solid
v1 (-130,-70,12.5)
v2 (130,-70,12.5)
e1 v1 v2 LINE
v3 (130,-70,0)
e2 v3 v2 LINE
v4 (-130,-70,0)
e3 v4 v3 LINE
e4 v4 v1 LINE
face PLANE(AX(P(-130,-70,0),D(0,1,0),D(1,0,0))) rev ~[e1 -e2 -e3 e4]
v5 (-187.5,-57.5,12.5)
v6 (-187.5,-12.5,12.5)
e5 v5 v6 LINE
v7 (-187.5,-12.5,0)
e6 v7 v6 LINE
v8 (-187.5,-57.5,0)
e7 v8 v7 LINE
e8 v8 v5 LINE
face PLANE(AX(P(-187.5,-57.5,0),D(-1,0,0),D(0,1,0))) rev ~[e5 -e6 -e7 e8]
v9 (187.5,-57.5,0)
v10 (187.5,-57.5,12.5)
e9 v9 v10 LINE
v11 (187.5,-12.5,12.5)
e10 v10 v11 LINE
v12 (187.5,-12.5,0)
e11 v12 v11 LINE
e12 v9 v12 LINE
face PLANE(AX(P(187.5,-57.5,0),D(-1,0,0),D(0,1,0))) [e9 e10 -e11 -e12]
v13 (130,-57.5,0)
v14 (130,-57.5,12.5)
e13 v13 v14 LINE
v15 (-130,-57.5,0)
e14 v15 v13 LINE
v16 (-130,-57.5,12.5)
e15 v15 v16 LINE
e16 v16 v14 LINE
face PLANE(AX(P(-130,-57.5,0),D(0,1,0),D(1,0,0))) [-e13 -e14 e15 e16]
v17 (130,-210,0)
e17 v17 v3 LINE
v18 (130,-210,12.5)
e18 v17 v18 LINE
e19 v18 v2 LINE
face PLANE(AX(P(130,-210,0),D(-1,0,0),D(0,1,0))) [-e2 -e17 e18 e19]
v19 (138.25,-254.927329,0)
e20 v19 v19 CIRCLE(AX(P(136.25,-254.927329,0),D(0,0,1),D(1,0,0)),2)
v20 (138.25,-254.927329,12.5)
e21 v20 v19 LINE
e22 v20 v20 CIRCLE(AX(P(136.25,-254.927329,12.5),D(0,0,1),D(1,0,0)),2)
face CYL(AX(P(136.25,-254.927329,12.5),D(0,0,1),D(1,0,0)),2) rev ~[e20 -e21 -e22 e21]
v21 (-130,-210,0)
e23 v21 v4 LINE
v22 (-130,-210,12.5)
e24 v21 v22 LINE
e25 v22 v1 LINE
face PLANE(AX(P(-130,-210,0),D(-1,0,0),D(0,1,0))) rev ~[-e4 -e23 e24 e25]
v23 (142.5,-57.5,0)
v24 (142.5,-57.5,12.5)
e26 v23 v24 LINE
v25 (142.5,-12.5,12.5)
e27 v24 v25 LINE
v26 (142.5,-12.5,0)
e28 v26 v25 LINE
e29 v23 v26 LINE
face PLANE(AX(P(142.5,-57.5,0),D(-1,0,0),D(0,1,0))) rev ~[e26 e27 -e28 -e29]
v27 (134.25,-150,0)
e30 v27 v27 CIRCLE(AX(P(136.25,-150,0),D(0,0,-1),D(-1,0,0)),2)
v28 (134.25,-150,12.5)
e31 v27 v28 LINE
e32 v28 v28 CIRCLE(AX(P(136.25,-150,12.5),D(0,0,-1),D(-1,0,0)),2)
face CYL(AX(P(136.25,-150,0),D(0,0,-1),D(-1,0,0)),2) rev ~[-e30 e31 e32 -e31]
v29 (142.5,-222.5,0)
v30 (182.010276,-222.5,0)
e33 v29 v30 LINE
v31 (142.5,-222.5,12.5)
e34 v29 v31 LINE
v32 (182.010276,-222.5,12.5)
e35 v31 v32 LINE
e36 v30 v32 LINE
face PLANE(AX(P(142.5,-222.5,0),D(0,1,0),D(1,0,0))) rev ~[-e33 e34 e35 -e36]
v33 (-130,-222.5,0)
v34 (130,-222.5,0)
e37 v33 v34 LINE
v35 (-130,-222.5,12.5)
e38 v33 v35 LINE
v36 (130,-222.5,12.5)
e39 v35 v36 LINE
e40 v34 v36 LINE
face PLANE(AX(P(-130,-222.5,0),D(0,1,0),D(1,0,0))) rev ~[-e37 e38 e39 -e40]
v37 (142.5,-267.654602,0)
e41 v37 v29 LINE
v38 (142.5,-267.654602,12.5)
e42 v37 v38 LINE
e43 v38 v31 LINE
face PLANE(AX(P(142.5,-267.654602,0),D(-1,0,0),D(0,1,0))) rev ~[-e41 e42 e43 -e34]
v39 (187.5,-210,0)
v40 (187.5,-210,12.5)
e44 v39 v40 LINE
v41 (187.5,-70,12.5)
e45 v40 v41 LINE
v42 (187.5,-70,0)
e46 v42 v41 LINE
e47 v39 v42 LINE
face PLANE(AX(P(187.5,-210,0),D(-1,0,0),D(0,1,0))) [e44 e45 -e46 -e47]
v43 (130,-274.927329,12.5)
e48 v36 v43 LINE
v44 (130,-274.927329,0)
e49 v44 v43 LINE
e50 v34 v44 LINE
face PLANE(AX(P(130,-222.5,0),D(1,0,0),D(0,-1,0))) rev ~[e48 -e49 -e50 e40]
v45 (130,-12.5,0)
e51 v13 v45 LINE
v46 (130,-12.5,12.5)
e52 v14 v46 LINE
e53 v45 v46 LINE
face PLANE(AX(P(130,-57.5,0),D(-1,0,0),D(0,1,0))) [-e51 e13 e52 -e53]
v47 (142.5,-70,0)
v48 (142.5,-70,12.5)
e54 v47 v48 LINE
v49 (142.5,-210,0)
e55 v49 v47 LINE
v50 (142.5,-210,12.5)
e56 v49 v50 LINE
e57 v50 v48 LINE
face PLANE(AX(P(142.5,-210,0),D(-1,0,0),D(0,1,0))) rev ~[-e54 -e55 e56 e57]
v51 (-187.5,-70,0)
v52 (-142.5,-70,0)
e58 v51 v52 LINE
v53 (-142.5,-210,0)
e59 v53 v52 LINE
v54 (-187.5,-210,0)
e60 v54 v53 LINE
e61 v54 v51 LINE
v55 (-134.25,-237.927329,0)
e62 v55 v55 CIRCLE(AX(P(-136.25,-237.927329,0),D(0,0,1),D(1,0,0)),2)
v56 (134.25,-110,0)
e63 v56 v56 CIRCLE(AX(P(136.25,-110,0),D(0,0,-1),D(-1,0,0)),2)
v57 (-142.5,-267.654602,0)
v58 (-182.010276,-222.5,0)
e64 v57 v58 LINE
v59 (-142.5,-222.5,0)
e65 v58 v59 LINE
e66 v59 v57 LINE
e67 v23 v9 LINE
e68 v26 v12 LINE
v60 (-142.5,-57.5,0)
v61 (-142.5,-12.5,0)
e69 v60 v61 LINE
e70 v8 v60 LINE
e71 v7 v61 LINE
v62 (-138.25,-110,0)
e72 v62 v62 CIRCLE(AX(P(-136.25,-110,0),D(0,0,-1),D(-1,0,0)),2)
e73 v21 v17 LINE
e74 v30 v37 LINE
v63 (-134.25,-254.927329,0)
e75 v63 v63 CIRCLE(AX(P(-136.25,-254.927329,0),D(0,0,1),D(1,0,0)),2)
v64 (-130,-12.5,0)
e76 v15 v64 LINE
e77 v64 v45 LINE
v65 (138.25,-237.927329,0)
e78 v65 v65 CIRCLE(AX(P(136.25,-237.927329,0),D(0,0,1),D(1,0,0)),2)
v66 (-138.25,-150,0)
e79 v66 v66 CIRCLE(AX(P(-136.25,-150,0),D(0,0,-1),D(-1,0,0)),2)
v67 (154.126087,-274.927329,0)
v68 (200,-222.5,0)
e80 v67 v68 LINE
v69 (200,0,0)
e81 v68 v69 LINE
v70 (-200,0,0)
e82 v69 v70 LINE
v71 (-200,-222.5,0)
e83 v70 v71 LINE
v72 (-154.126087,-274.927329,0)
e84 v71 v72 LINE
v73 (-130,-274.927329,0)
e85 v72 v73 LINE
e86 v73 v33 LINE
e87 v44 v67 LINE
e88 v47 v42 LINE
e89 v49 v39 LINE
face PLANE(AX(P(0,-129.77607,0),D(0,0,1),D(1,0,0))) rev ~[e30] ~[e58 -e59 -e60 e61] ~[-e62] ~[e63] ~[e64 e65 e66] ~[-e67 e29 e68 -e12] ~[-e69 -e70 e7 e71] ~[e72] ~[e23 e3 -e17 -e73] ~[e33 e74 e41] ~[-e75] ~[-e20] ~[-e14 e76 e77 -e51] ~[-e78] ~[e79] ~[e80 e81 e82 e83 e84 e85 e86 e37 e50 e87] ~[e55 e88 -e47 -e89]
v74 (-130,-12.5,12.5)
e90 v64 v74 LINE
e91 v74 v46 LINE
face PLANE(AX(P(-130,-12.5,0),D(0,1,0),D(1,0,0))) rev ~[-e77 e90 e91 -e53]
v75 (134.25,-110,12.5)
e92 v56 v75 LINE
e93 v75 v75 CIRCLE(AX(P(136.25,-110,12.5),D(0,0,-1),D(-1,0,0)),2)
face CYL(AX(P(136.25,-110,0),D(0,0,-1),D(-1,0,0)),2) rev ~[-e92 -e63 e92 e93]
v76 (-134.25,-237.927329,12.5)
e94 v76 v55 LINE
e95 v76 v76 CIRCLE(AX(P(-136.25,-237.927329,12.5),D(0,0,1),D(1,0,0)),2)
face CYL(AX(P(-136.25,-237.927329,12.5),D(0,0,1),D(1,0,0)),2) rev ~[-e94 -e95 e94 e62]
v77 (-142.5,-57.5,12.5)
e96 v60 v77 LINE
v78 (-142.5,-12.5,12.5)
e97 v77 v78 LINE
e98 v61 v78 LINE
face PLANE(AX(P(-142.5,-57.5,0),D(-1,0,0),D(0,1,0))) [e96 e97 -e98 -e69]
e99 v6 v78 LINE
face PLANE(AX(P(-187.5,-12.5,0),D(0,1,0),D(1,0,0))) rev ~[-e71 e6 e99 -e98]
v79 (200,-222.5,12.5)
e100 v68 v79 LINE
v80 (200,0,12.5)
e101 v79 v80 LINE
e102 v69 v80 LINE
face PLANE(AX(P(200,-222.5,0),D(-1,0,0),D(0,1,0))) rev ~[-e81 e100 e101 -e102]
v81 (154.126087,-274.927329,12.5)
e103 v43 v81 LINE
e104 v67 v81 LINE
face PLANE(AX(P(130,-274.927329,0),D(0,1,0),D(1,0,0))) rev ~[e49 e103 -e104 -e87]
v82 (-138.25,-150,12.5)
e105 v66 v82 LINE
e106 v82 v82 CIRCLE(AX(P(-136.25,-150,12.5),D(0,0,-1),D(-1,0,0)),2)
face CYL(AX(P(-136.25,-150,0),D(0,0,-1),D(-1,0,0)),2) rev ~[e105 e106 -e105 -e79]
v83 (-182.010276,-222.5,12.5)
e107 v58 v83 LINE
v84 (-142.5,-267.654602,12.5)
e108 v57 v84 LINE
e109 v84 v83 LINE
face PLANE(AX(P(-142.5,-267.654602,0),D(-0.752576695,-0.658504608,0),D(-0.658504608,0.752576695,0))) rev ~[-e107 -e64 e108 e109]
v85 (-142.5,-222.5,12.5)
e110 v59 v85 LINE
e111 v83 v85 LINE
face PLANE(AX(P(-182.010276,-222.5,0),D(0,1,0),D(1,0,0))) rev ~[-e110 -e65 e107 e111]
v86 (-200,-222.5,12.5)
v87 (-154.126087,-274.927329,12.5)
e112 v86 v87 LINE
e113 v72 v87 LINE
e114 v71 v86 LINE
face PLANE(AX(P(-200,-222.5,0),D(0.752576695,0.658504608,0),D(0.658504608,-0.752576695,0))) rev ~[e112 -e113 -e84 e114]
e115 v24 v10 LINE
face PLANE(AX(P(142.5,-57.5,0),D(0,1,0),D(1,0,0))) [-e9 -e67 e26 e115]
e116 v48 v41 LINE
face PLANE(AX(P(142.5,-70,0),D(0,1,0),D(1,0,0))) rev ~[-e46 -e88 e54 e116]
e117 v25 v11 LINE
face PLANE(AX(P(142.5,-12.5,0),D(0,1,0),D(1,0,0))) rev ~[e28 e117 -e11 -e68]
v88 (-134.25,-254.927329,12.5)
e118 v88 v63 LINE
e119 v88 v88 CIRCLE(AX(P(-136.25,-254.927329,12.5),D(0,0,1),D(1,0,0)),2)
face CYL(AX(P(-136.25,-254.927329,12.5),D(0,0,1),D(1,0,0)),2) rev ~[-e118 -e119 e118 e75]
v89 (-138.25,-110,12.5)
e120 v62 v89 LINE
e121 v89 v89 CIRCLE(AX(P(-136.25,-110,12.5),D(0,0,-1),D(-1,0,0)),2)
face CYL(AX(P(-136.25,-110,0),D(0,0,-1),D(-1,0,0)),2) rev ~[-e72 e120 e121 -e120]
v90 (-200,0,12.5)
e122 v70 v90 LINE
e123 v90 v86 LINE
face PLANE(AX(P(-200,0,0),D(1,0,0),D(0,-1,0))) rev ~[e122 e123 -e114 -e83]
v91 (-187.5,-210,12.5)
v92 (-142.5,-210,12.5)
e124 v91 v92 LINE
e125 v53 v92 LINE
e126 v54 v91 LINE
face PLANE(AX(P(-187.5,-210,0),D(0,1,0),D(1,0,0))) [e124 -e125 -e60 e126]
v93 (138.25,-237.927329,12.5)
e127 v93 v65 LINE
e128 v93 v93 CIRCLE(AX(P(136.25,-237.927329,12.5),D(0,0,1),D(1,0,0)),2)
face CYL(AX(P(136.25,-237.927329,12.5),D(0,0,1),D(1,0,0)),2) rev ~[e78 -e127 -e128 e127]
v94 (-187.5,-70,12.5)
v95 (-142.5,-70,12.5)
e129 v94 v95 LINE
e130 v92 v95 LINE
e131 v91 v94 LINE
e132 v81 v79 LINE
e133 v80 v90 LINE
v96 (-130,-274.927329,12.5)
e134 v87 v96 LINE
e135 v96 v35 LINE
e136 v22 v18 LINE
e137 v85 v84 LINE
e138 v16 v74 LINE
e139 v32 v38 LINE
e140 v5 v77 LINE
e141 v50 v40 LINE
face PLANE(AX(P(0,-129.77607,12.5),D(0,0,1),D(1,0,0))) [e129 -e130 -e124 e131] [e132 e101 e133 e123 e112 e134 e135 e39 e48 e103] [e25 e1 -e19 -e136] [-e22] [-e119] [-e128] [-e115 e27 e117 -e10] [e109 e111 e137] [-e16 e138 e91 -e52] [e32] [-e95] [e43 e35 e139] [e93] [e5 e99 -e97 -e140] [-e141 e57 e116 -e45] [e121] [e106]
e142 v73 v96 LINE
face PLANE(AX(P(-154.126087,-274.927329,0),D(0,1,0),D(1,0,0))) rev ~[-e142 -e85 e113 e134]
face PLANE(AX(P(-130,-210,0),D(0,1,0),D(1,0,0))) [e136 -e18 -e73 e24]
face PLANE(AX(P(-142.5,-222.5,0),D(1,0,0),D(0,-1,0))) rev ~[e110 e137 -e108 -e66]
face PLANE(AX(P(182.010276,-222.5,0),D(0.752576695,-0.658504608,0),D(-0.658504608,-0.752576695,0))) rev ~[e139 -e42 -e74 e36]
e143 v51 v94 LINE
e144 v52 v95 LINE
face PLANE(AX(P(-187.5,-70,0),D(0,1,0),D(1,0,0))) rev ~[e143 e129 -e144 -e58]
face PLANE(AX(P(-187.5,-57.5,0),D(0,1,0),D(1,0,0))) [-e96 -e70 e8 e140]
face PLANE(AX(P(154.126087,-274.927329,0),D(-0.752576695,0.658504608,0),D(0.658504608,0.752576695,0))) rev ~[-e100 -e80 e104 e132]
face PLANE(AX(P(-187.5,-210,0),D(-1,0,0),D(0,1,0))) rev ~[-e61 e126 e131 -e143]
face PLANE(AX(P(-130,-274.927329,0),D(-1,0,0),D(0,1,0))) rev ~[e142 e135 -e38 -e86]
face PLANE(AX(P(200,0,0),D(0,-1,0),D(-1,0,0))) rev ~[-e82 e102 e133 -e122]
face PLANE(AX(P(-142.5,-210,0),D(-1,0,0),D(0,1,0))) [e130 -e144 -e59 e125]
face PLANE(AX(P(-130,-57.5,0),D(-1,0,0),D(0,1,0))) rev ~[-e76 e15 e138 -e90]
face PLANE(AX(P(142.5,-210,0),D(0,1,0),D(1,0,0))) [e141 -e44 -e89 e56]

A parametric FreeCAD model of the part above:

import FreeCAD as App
import Part
import Sketcher
from FreeCAD import Vector
Q = App.Units.Quantity


def add_polygon(sketch, points):
    """Adds a closed chain of lines whose ends are joined by coincident constraints."""
    first, n = sketch.GeometryCount, len(points)
    for a, b in zip(points, points[1:] + points[:1]):
        sketch.addGeometry(Part.LineSegment(App.Vector(*a, 0), App.Vector(*b, 0)), False)
    for i in range(n):
        sketch.addConstraint(Sketcher.Constraint("Coincident", first + i, 2, first + (i + 1) % n, 1))

doc = App.newDocument("Part")
body = doc.addObject("PartDesign::Body", "Body")

sketch1 = body.newObject("Sketcher::SketchObject", "Sketch")
sketch1.AttachmentSupport = (doc.getObject("XY_Plane"), [""])
sketch1.MapMode = "FlatFace"
add_polygon(sketch1, [(200, 0), (-200, 0), (-200, -222), (-154, -275), (-130, -275), (-130, -222), (130, -222), (130, -275), (154, -275), (200, -222)])
add_polygon(sketch1, [(-142, -222), (-142, -268), (-182, -222)])
add_polygon(sketch1, [(142, -268), (142, -222), (182, -222)])
add_polygon(sketch1, [(-142, -210), (-188, -210), (-188, -70), (-142, -70)])
add_polygon(sketch1, [(-142, -58), (-188, -58), (-188, -12), (-142, -12)])
add_polygon(sketch1, [(130, -210), (-130, -210), (-130, -70), (130, -70)])
add_polygon(sketch1, [(188, -210), (142, -210), (142, -70), (188, -70)])
add_polygon(sketch1, [(130, -58), (-130, -58), (-130, -12), (130, -12)])
add_polygon(sketch1, [(188, -58), (142, -58), (142, -12), (188, -12)])
sketch1.addConstraint([
    Sketcher.Constraint("Horizontal", 0),
    Sketcher.Constraint("Vertical", 1),
    Sketcher.Constraint("Horizontal", 3),
    Sketcher.Constraint("Vertical", 4),
    Sketcher.Constraint("Horizontal", 5),
    Sketcher.Constraint("Vertical", 6),
    Sketcher.Constraint("Horizontal", 7),
    Sketcher.Constraint("Vertical", 9),
    Sketcher.Constraint("Vertical", 10),
    Sketcher.Constraint("Horizontal", 12),
    Sketcher.Constraint("Vertical", 13),
    Sketcher.Constraint("Horizontal", 14),
    Sketcher.Constraint("Horizontal", 16),
    Sketcher.Constraint("Vertical", 17),
    Sketcher.Constraint("Horizontal", 18),
    Sketcher.Constraint("Vertical", 19),
    Sketcher.Constraint("Horizontal", 20),
    Sketcher.Constraint("Vertical", 21),
    Sketcher.Constraint("Horizontal", 22),
    Sketcher.Constraint("Vertical", 23),
    Sketcher.Constraint("Horizontal", 24),
    Sketcher.Constraint("Vertical", 25),
    Sketcher.Constraint("Horizontal", 26),
    Sketcher.Constraint("Vertical", 27),
    Sketcher.Constraint("Horizontal", 28),
    Sketcher.Constraint("Vertical", 29),
    Sketcher.Constraint("Horizontal", 30),
    Sketcher.Constraint("Vertical", 31),
    Sketcher.Constraint("Horizontal", 32),
    Sketcher.Constraint("Vertical", 33),
    Sketcher.Constraint("Horizontal", 34),
    Sketcher.Constraint("Vertical", 35),
    Sketcher.Constraint("Horizontal", 36),
    Sketcher.Constraint("Vertical", 37),
    Sketcher.Constraint("Horizontal", 38),
    Sketcher.Constraint("Vertical", 39),
    Sketcher.Constraint("Symmetric", 0, 2, 9, 2, -1, 1),
    Sketcher.Constraint("Symmetric", 3, 2, 6, 2, -2),
    Sketcher.Constraint("Symmetric", 12, 2, 13, 2, -2),
    Sketcher.Constraint("Symmetric", 19, 2, 28, 2, -2),
    Sketcher.Constraint("Symmetric", 17, 2, 30, 2, -2),
    Sketcher.Constraint("Symmetric", 23, 2, 36, 2, -2),
    Sketcher.Constraint("Symmetric", 21, 2, 38, 2, -2),
    Sketcher.Constraint("Parallel", 2, 11),
    Sketcher.Constraint("Parallel", 8, 15),
    Sketcher.Constraint("Horizontal", 1, 2, 4, 2),
    Sketcher.Constraint("Horizontal", 5, 2, 8, 2),
    Sketcher.Constraint("Horizontal", 8, 2, 11, 2),
    Sketcher.Constraint("Horizontal", 10, 2, 15, 2),
    Sketcher.Constraint("Horizontal", 19, 2, 24, 2),
    Sketcher.Constraint("Horizontal", 18, 2, 25, 2),
    Sketcher.Constraint("Horizontal", 23, 2, 32, 2),
    Sketcher.Constraint("Horizontal", 22, 2, 33, 2),
    Sketcher.Constraint("Vertical", 12, 2, 18, 2),
    Sketcher.Constraint("Vertical", 17, 2, 20, 2),
    Sketcher.Constraint("Vertical", 19, 2, 22, 2),
    Sketcher.Constraint("Vertical", 4, 2, 24, 2),
    Sketcher.Constraint("Vertical", 6, 2, 26, 2),
    Sketcher.Constraint("Vertical", 25, 2, 32, 2),
    Sketcher.Constraint("Vertical", 27, 2, 34, 2),
    Sketcher.Constraint("Equal", 3, 7),
    Sketcher.Constraint("Equal", 38, 21),
    Sketcher.Constraint("DistanceX", 0, 2, 0, 1, Q("400 mm")),
    Sketcher.Constraint("DistanceX", 5, 1, 5, 2, Q("260 mm")),
    Sketcher.Constraint("DistanceX", 16, 2, 16, 1, Q("45 mm")),
    Sketcher.Constraint("DistanceY", 17, 1, 17, 2, Q("140 mm")),
    Sketcher.Constraint("Distance", 11, Q("60 mm")),
    Sketcher.Constraint("DistanceY", 1, 2, 1, 1, Q("222.5 mm")),
    Sketcher.Constraint("DistanceY", 16, 2, -1, 1, Q("210 mm")),
    Sketcher.Constraint("DistanceX", 10, 2, -1, 1, Q("142.5 mm")),
    Sketcher.Constraint("DistanceY", 20, 2, -1, 1, Q("57.5 mm")),
    Sketcher.Constraint("DistanceY", 10, 2, 10, 1, Q("45.154602 mm")),
    Sketcher.Constraint("DistanceY", 4, 1, 4, 2, Q("52.427329 mm")),
])
pad1 = body.newObject("PartDesign::Pad", "Pad")
pad1.Profile = sketch1
pad1.Length = 12.5

sketch2 = body.newObject("Sketcher::SketchObject", "Sketch001")
sketch2.AttachmentSupport = (doc.getObject("XY_Plane"), [""])
sketch2.MapMode = "FlatFace"
sketch2.addGeometry([
    Part.Circle(Vector(-136.2, -110, 0), Vector(0, 0, 1), 2),
    Part.Circle(Vector(-136.2, -150, 0), Vector(0, 0, 1), 2),
    Part.Circle(Vector(136.2, -110, 0), Vector(0, 0, 1), 2),
    Part.Circle(Vector(136.2, -150, 0), Vector(0, 0, 1), 2),
], False)
sketch2.addConstraint([
    Sketcher.Constraint("Equal", 0, 1),
    Sketcher.Constraint("Equal", 1, 2),
    Sketcher.Constraint("Equal", 2, 3),
    Sketcher.Constraint("Symmetric", 0, 3, 2, 3, -2),
    Sketcher.Constraint("Symmetric", 1, 3, 3, 3, -2),
    Sketcher.Constraint("Vertical", 0, 3, 1, 3),
    Sketcher.Constraint("Diameter", 0, Q("4 mm")),
    Sketcher.Constraint("DistanceY", 0, 3, -1, 1, Q("110 mm")),
    Sketcher.Constraint("DistanceY", 1, 3, -1, 1, Q("150 mm")),
    Sketcher.Constraint("DistanceX", 0, 3, 2, 3, Q("272.5 mm")),
])
pocket1 = body.newObject("PartDesign::Pocket", "Pocket")
pocket1.Profile = sketch2
pocket1.Length = 15
pocket1.Reversed = True

sketch3 = body.newObject("Sketcher::SketchObject", "Sketch002")
sketch3.AttachmentSupport = (doc.getObject("XY_Plane"), [""])
sketch3.MapMode = "FlatFace"
sketch3.AttachmentOffset = App.Placement(Vector(0, 0, 12.5), App.Rotation())
sketch3.addGeometry([
    Part.Circle(Vector(-136.2, -237.9, 0), Vector(0, 0, 1), 2),
    Part.Circle(Vector(-136.2, -254.9, 0), Vector(0, 0, 1), 2),
    Part.Circle(Vector(136.2, -254.9, 0), Vector(0, 0, 1), 2),
    Part.Circle(Vector(136.2, -237.9, 0), Vector(0, 0, 1), 2),
], False)
sketch3.addConstraint([
    Sketcher.Constraint("Equal", 0, 1),
    Sketcher.Constraint("Equal", 1, 2),
    Sketcher.Constraint("Equal", 2, 3),
    Sketcher.Constraint("Symmetric", 1, 3, 2, 3, -2),
    Sketcher.Constraint("Symmetric", 0, 3, 3, 3, -2),
    Sketcher.Constraint("Vertical", 0, 3, 1, 3),
    Sketcher.Constraint("Diameter", 0, Q("4 mm")),
    Sketcher.Constraint("DistanceY", 1, 3, 0, 3, Q("17 mm")),
    Sketcher.Constraint("DistanceX", 1, 3, 2, 3, Q("272.5 mm")),
    Sketcher.Constraint("DistanceY", 0, 3, -1, 1, Q("237.927329 mm")),
])
pocket2 = body.newObject("PartDesign::Pocket", "Pocket001")
pocket2.Profile = sketch3
pocket2.Length = 15

doc.recompute()
